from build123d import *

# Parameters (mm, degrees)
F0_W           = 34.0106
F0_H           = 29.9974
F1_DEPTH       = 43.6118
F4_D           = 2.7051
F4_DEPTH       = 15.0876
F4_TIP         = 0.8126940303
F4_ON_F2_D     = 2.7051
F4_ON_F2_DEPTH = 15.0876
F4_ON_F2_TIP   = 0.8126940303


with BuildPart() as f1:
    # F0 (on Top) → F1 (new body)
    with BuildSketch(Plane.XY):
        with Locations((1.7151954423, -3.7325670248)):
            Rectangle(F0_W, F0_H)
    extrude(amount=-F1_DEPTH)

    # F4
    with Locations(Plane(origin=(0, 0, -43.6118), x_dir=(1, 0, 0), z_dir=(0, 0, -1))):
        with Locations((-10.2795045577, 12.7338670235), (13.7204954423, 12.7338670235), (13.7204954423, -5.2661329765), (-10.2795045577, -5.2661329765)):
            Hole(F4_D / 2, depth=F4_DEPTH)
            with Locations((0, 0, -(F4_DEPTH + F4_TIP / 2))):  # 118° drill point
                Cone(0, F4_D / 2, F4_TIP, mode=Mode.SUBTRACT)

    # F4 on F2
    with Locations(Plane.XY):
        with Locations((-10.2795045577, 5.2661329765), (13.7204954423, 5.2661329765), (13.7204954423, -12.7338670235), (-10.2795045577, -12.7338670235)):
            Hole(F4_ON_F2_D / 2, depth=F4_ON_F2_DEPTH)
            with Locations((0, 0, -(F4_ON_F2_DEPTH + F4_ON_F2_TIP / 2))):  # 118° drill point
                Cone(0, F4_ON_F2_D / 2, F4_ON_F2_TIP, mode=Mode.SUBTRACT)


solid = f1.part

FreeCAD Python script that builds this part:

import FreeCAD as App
import Part
import Sketcher
Q = App.Units.Quantity

doc = App.newDocument("Part")
body = doc.addObject("PartDesign::Body", "Body")

# Sketch on XY plane
sketch1 = body.newObject("Sketcher::SketchObject", "Sketch")
sketch1.AttachmentSupport = (doc.getObject("XY_Plane"), [""])
sketch1.MapMode = "FlatFace"
sketch1.addGeometry([
    Part.LineSegment(App.Vector(-15, 11, 0), App.Vector(-15, -19, 0)),
    Part.LineSegment(App.Vector(-15, -19, 0), App.Vector(19, -19, 0)),
    Part.LineSegment(App.Vector(19, -19, 0), App.Vector(19, 11, 0)),
    Part.LineSegment(App.Vector(19, 11, 0), App.Vector(-15, 11, 0)),
], False)
sketch1.addConstraint([
    Sketcher.Constraint("Coincident", 0, 2, 1, 1),
    Sketcher.Constraint("Coincident", 1, 2, 2, 1),
    Sketcher.Constraint("Coincident", 2, 2, 3, 1),
    Sketcher.Constraint("Coincident", 3, 2, 0, 1),
    Sketcher.Constraint("Vertical", 0),
    Sketcher.Constraint("Horizontal", 1),
    Sketcher.Constraint("Vertical", 2),
    Sketcher.Constraint("Horizontal", 3),
    Sketcher.Constraint("DistanceX", 1, 1, 1, 2, Q("1.339 in")),
    Sketcher.Constraint("DistanceY", 0, 2, 0, 1, Q("1.181 in")),
    Sketcher.Constraint("DistanceX", 0, 2, -1, 1, 15.290105),
    Sketcher.Constraint("DistanceY", 0, 2, -1, 1, 18.731267),
])
pad1 = body.newObject("PartDesign::Pad", "Pad")
pad1.Profile = sketch1
pad1.Length = Q("1.717 in")
pad1.Reversed = True

# Sketch on XY plane
sketch2 = body.newObject("Sketcher::SketchObject", "Sketch001")
sketch2.AttachmentSupport = (doc.getObject("XY_Plane"), [""])
sketch2.MapMode = "FlatFace"
sketch2.AttachmentOffset = App.Placement(App.Vector(0, 0, -1.717 * 25.4), App.Rotation())
sketch2.addGeometry([
    Part.Circle(App.Vector(-10.3, -12.7, 0), App.Vector(0, 0, 1), 1.4),
    Part.Circle(App.Vector(13.7, -12.7, 0), App.Vector(0, 0, 1), 1.4),
    Part.Circle(App.Vector(13.7, 5.3, 0), App.Vector(0, 0, 1), 1.4),
    Part.Circle(App.Vector(-10.3, 5.3, 0), App.Vector(0, 0, 1), 1.4),
], False)
sketch2.addConstraint([
    Sketcher.Constraint("Equal", 0, 1),
    Sketcher.Constraint("Equal", 1, 2),
    Sketcher.Constraint("Equal", 2, 3),
    Sketcher.Constraint("Horizontal", 0, 3, 1, 3),
    Sketcher.Constraint("Horizontal", 2, 3, 3, 3),
    Sketcher.Constraint("Vertical", 1, 3, 2, 3),
    Sketcher.Constraint("Vertical", 0, 3, 3, 3),
    Sketcher.Constraint("Diameter", 0, Q("0.1065 in")),
    Sketcher.Constraint("DistanceX", 0, 3, 1, 3, 24.0),
    Sketcher.Constraint("DistanceY", 1, 3, 2, 3, 18.0),
    Sketcher.Constraint("DistanceX", 0, 3, -1, 1, 10.279505),
    Sketcher.Constraint("DistanceY", 0, 3, -1, 1, 12.733867),
])
doc.recompute()
hole = body.newObject("PartDesign::Hole", "Hole")
hole.Profile = sketch2
hole.ThreadType = "None"
hole.Diameter = Q("0.1065 in")
hole.DepthType = "Dimension"
hole.Depth = Q("0.594 in")
hole.DrillPoint = "Angled"
hole.DrillPointAngle = 118
hole.Reversed = True

# Sketch on XY plane
sketch3 = body.newObject("Sketcher::SketchObject", "Sketch002")
sketch3.AttachmentSupport = (doc.getObject("XY_Plane"), [""])
sketch3.MapMode = "FlatFace"
sketch3.addGeometry([
    Part.Circle(App.Vector(-10.3, 5.3, 0), App.Vector(0, 0, 1), 1.4),
    Part.Circle(App.Vector(13.7, 5.3, 0), App.Vector(0, 0, 1), 1.4),
    Part.Circle(App.Vector(13.7, -12.7, 0), App.Vector(0, 0, 1), 1.4),
    Part.Circle(App.Vector(-10.3, -12.7, 0), App.Vector(0, 0, 1), 1.4),
], False)
sketch3.addConstraint([
    Sketcher.Constraint("Equal", 0, 1),
    Sketcher.Constraint("Equal", 1, 2),
    Sketcher.Constraint("Equal", 2, 3),
    Sketcher.Constraint("Horizontal", 0, 3, 1, 3),
    Sketcher.Constraint("Horizontal", 2, 3, 3, 3),
    Sketcher.Constraint("Vertical", 1, 3, 2, 3),
    Sketcher.Constraint("Vertical", 0, 3, 3, 3),
    Sketcher.Constraint("Diameter", 0, Q("0.1065 in")),
    Sketcher.Constraint("DistanceX", 0, 3, 1, 3, 24.0),
    Sketcher.Constraint("DistanceY", 2, 3, 1, 3, 18.0),
    Sketcher.Constraint("DistanceX", 0, 3, -1, 1, 10.279505),
    Sketcher.Constraint("DistanceY", -1, 1, 0, 3, 5.266133),
])
doc.recompute()
hole2 = body.newObject("PartDesign::Hole", "Hole001")
hole2.Profile = sketch3
hole2.ThreadType = "None"
hole2.Diameter = Q("0.1065 in")
hole2.DepthType = "Dimension"
hole2.Depth = Q("0.594 in")
hole2.DrillPoint = "Angled"
hole2.DrillPointAngle = 118

doc.recompute()
